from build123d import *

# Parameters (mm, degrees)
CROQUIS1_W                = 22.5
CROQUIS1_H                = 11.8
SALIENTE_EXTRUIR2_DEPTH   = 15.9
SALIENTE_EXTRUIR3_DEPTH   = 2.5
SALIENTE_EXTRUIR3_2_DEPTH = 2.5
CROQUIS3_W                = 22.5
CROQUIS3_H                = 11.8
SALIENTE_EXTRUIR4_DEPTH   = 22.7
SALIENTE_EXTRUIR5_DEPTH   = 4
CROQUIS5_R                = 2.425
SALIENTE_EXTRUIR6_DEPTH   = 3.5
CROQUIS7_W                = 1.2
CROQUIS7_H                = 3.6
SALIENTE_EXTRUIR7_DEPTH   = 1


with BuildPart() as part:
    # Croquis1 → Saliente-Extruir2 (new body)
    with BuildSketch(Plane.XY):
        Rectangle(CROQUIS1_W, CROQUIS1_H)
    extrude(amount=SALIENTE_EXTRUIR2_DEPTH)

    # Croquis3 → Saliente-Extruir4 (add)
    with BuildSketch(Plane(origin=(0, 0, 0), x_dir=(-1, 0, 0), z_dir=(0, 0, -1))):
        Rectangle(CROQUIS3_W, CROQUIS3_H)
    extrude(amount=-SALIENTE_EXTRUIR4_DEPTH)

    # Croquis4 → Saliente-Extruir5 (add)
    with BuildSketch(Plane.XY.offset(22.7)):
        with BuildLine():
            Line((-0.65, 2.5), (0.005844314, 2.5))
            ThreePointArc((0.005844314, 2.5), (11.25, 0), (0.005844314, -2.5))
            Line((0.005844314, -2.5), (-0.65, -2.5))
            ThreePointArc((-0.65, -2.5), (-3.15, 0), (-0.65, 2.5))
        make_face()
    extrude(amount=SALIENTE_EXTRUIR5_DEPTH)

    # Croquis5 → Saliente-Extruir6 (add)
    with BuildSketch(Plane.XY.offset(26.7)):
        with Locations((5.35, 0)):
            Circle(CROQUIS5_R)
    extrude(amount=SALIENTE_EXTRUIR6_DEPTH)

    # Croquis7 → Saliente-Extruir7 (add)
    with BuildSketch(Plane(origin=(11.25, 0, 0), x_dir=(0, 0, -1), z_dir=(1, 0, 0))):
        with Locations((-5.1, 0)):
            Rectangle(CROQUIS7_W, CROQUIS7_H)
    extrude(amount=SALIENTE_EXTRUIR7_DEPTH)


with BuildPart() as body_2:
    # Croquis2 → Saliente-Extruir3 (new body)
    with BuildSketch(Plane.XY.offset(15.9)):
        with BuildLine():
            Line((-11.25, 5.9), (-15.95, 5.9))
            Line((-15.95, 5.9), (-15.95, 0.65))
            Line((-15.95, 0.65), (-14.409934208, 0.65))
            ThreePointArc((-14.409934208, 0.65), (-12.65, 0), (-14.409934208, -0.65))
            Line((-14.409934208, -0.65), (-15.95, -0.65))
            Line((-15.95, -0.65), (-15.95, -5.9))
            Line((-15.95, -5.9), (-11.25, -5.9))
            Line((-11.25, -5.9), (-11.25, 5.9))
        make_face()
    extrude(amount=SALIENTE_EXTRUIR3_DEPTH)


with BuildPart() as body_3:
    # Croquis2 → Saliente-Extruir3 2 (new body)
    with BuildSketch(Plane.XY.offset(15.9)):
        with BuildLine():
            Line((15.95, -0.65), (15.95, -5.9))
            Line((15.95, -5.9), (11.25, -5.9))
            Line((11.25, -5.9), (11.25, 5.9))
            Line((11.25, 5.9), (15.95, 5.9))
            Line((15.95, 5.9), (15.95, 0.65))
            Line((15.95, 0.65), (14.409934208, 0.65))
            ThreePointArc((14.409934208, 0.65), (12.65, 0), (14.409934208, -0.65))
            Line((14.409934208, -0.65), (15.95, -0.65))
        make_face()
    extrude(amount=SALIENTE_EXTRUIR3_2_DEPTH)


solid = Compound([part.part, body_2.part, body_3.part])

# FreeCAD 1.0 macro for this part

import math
import FreeCAD as App
import Part
import Sketcher
Q = App.Units.Quantity

doc = App.newDocument("Part")
body = doc.addObject("PartDesign::Body", "Body")

# Sketch on XY plane
sketch1 = doc.addObject("Sketcher::SketchObject", "Sketch")
body.addObject(sketch1)
sketch1.AttachmentSupport = (doc.XY_Plane, [""])
sketch1.MapMode = "FlatFace"
sketch1.addGeometry([
    Part.LineSegment(App.Vector(-11.25, 5.9, 0), App.Vector(-11.25, -5.9, 0)),
    Part.LineSegment(App.Vector(-11.25, -5.9, 0), App.Vector(11.25, -5.9, 0)),
    Part.LineSegment(App.Vector(11.25, -5.9, 0), App.Vector(11.25, 5.9, 0)),
    Part.LineSegment(App.Vector(11.25, 5.9, 0), App.Vector(-11.25, 5.9, 0)),
], False)
sketch1.addConstraint([
    Sketcher.Constraint("Coincident", 0, 2, 1, 1),
    Sketcher.Constraint("Coincident", 1, 2, 2, 1),
    Sketcher.Constraint("Coincident", 2, 2, 3, 1),
    Sketcher.Constraint("Coincident", 3, 2, 0, 1),
    Sketcher.Constraint("Vertical", 0),
    Sketcher.Constraint("Horizontal", 1),
    Sketcher.Constraint("Vertical", 2),
    Sketcher.Constraint("Horizontal", 3),
    Sketcher.Constraint("Symmetric", 0, 2, 2, 2, -1, 1),
    Sketcher.Constraint("DistanceX", 1, 1, 1, 2, Q("22.5 mm")),
    Sketcher.Constraint("DistanceY", 0, 2, 0, 1, Q("11.8 mm")),
])
pad1 = doc.addObject("PartDesign::Pad", "Pad")
body.addObject(pad1)
pad1.Profile = sketch1
pad1.Length = 15.9

# Sketch on XY plane
sketch2 = doc.addObject("Sketcher::SketchObject", "Sketch001")
body.addObject(sketch2)
sketch2.AttachmentSupport = (doc.XY_Plane, [""])
sketch2.MapMode = "FlatFace"
sketch2.addGeometry([
    Part.LineSegment(App.Vector(11.25, 5.9, 0), App.Vector(11.25, -5.9, 0)),
    Part.LineSegment(App.Vector(11.25, -5.9, 0), App.Vector(-11.25, -5.9, 0)),
    Part.LineSegment(App.Vector(-11.25, -5.9, 0), App.Vector(-11.25, 5.9, 0)),
    Part.LineSegment(App.Vector(-11.25, 5.9, 0), App.Vector(11.25, 5.9, 0)),
], False)
sketch2.addConstraint([
    Sketcher.Constraint("Coincident", 0, 2, 1, 1),
    Sketcher.Constraint("Coincident", 1, 2, 2, 1),
    Sketcher.Constraint("Coincident", 2, 2, 3, 1),
    Sketcher.Constraint("Coincident", 3, 2, 0, 1),
    Sketcher.Constraint("Vertical", 0),
    Sketcher.Constraint("Horizontal", 1),
    Sketcher.Constraint("Vertical", 2),
    Sketcher.Constraint("Horizontal", 3),
    Sketcher.Constraint("Symmetric", 0, 2, 2, 2, -1, 1),
    Sketcher.Constraint("DistanceX", 1, 2, 1, 1, Q("22.5 mm")),
    Sketcher.Constraint("DistanceY", 0, 2, 0, 1, Q("11.8 mm")),
])
pad2 = doc.addObject("PartDesign::Pad", "Pad001")
body.addObject(pad2)
pad2.Profile = sketch2
pad2.Length = 22.7

# Sketch on XY plane
sketch3 = doc.addObject("Sketcher::SketchObject", "Sketch002")
body.addObject(sketch3)
sketch3.AttachmentSupport = (doc.XY_Plane, [""])
sketch3.MapMode = "FlatFace"
sketch3.AttachmentOffset = App.Placement(App.Vector(0, 0, 22.7), App.Rotation())
sketch3.addGeometry([
    Part.LineSegment(App.Vector(0.005844, 2.5, 0), App.Vector(-0.65, 2.5, 0)),
    Part.ArcOfCircle(Part.Circle(App.Vector(-0.65, 0, 0), App.Vector(0, 0, 1), 2.5), math.radians(90), math.radians(270)),
    Part.LineSegment(App.Vector(-0.65, -2.5, 0), App.Vector(0.005844, -2.5, 0)),
    Part.ArcOfCircle(Part.Circle(App.Vector(5.35, 0, 0), App.Vector(0, 0, 1), 5.9), math.radians(-154.929772), math.radians(154.929772)),
], False)
sketch3.addConstraint([
    Sketcher.Constraint("Tangent", 0, 2, 1, 1),
    Sketcher.Constraint("Tangent", 1, 2, 2, 1),
    Sketcher.Constraint("Coincident", 2, 2, 3, 1),
    Sketcher.Constraint("Coincident", 3, 2, 0, 1),
    Sketcher.Constraint("Horizontal", 0),
    Sketcher.Constraint("Horizontal", 2),
    Sketcher.Constraint("Symmetric", 2, 2, 3, 2, -1),
    Sketcher.Constraint("Radius", 1, Q("2.5 mm")),
    Sketcher.Constraint("Radius", 3, Q("5.9 mm")),
    Sketcher.Constraint("DistanceX", 1, 3, 3, 3, Q("6 mm")),
    Sketcher.Constraint("DistanceX", 1, 3, -1, 1, Q("0.65 mm")),
])
pad3 = doc.addObject("PartDesign::Pad", "Pad002")
body.addObject(pad3)
pad3.Profile = sketch3
pad3.Length = 4

# Sketch on XY plane
sketch4 = doc.addObject("Sketcher::SketchObject", "Sketch003")
body.addObject(sketch4)
sketch4.AttachmentSupport = (doc.XY_Plane, [""])
sketch4.MapMode = "FlatFace"
sketch4.AttachmentOffset = App.Placement(App.Vector(0, 0, 26.7), App.Rotation())
sketch4.addGeometry(Part.Circle(App.Vector(5.35, 0, 0), App.Vector(0, 0, 1), 2.425), False)
sketch4.addConstraint([
    Sketcher.Constraint("PointOnObject", 0, 3, -1),
    Sketcher.Constraint("Diameter", 0, Q("4.85 mm")),
    Sketcher.Constraint("DistanceX", -1, 1, 0, 3, Q("5.35 mm")),
])
pad4 = doc.addObject("PartDesign::Pad", "Pad003")
body.addObject(pad4)
pad4.Profile = sketch4
pad4.Length = 3.5

# Sketch on YZ plane
sketch5 = doc.addObject("Sketcher::SketchObject", "Sketch004")
body.addObject(sketch5)
sketch5.AttachmentSupport = (doc.YZ_Plane, [""])
sketch5.MapMode = "FlatFace"
sketch5.AttachmentOffset = App.Placement(App.Vector(0, 0, 11.25), App.Rotation())
sketch5.addGeometry([
    Part.LineSegment(App.Vector(1.8, 5.7, 0), App.Vector(-1.8, 5.7, 0)),
    Part.LineSegment(App.Vector(-1.8, 5.7, 0), App.Vector(-1.8, 4.5, 0)),
    Part.LineSegment(App.Vector(-1.8, 4.5, 0), App.Vector(1.8, 4.5, 0)),
    Part.LineSegment(App.Vector(1.8, 4.5, 0), App.Vector(1.8, 5.7, 0)),
], False)
sketch5.addConstraint([
    Sketcher.Constraint("Coincident", 0, 2, 1, 1),
    Sketcher.Constraint("Coincident", 1, 2, 2, 1),
    Sketcher.Constraint("Coincident", 2, 2, 3, 1),
    Sketcher.Constraint("Coincident", 3, 2, 0, 1),
    Sketcher.Constraint("Horizontal", 0),
    Sketcher.Constraint("Vertical", 1),
    Sketcher.Constraint("Horizontal", 2),
    Sketcher.Constraint("Vertical", 3),
    Sketcher.Constraint("DistanceX", 0, 2, 0, 1, Q("3.6 mm")),
    Sketcher.Constraint("DistanceY", 1, 2, 1, 1, Q("1.2 mm")),
    Sketcher.Constraint("DistanceX", 0, 2, -1, 1, Q("1.8 mm")),
    Sketcher.Constraint("DistanceY", -1, 1, 0, 2, Q("5.7 mm")),
])
pad5 = doc.addObject("PartDesign::Pad", "Pad004")
body.addObject(pad5)
pad5.Profile = sketch5
pad5.Length = 1
body2 = doc.addObject("PartDesign::Body", "Body001")

# Sketch on XY plane
sketch6 = doc.addObject("Sketcher::SketchObject", "Sketch005")
body2.addObject(sketch6)
sketch6.AttachmentSupport = (doc.getObject("XY_Plane001"), [""])
sketch6.MapMode = "FlatFace"
sketch6.AttachmentOffset = App.Placement(App.Vector(0, 0, 15.9), App.Rotation())
sketch6.addGeometry([
    Part.LineSegment(App.Vector(-11.25, 5.9, 0), App.Vector(-15.95, 5.9, 0)),  # 0
    Part.LineSegment(App.Vector(-15.95, 5.9, 0), App.Vector(-15.95, 0.65, 0)),  # 1
    Part.LineSegment(App.Vector(-15.95, 0.65, 0), App.Vector(-14.409934, 0.65, 0)),  # 2
    Part.ArcOfCircle(Part.Circle(App.Vector(-13.65, 0, 0), App.Vector(0, 0, 1), 1), math.radians(-139.458398), math.radians(139.458398)),  # 3
    Part.LineSegment(App.Vector(-14.409934, -0.65, 0), App.Vector(-15.95, -0.65, 0)),  # 4
    Part.LineSegment(App.Vector(-15.95, -0.65, 0), App.Vector(-15.95, -5.9, 0)),  # 5
    Part.LineSegment(App.Vector(-15.95, -5.9, 0), App.Vector(-11.25, -5.9, 0)),  # 6
    Part.LineSegment(App.Vector(-11.25, -5.9, 0), App.Vector(-11.25, 5.9, 0)),  # 7
], False)
sketch6.addConstraint([
    Sketcher.Constraint("Coincident", 0, 2, 1, 1),
    Sketcher.Constraint("Coincident", 1, 2, 2, 1),
    Sketcher.Constraint("Coincident", 2, 2, 3, 2),
    Sketcher.Constraint("Coincident", 3, 1, 4, 1),
    Sketcher.Constraint("Coincident", 4, 2, 5, 1),
    Sketcher.Constraint("Coincident", 5, 2, 6, 1),
    Sketcher.Constraint("Coincident", 6, 2, 7, 1),
    Sketcher.Constraint("Coincident", 7, 2, 0, 1),
    Sketcher.Constraint("Horizontal", 0),
    Sketcher.Constraint("Vertical", 1),
    Sketcher.Constraint("Horizontal", 2),
    Sketcher.Constraint("Horizontal", 4),
    Sketcher.Constraint("Vertical", 5),
    Sketcher.Constraint("Horizontal", 6),
    Sketcher.Constraint("Vertical", 7),
    Sketcher.Constraint("Symmetric", 2, 2, 3, 1, -1),
    Sketcher.Constraint("Symmetric", 0, 2, 5, 2, -1),
    Sketcher.Constraint("Radius", 3, Q("1 mm")),
    Sketcher.Constraint("DistanceX", 0, 2, 0, 1, Q("4.7 mm")),
    Sketcher.Constraint("DistanceY", 7, 1, 7, 2, Q("11.8 mm")),
    Sketcher.Constraint("DistanceY", 1, 2, 1, 1, Q("5.25 mm")),
    Sketcher.Constraint("DistanceX", 0, 2, 3, 3, Q("2.3 mm")),
    Sketcher.Constraint("DistanceX", 3, 3, -1, 1, Q("13.65 mm")),
])
pad6 = doc.addObject("PartDesign::Pad", "Pad005")
body2.addObject(pad6)
pad6.Profile = sketch6
pad6.Length = 2.5
body3 = doc.addObject("PartDesign::Body", "Body002")

# Sketch on XY plane
sketch7 = doc.addObject("Sketcher::SketchObject", "Sketch006")
body3.addObject(sketch7)
sketch7.AttachmentSupport = (doc.getObject("XY_Plane002"), [""])
sketch7.MapMode = "FlatFace"
sketch7.AttachmentOffset = App.Placement(App.Vector(0, 0, 15.9), App.Rotation())
sketch7.addGeometry([
    Part.LineSegment(App.Vector(15.95, -5.9, 0), App.Vector(15.95, -0.65, 0)),  # 0
    Part.LineSegment(App.Vector(15.95, -0.65, 0), App.Vector(14.409934, -0.65, 0)),  # 1
    Part.ArcOfCircle(Part.Circle(App.Vector(13.65, 0, 0), App.Vector(0, 0, 1), 1), math.radians(40.541602), math.radians(319.458398)),  # 2
    Part.LineSegment(App.Vector(14.409934, 0.65, 0), App.Vector(15.95, 0.65, 0)),  # 3
    Part.LineSegment(App.Vector(15.95, 0.65, 0), App.Vector(15.95, 5.9, 0)),  # 4
    Part.LineSegment(App.Vector(15.95, 5.9, 0), App.Vector(11.25, 5.9, 0)),  # 5
    Part.LineSegment(App.Vector(11.25, 5.9, 0), App.Vector(11.25, -5.9, 0)),  # 6
    Part.LineSegment(App.Vector(11.25, -5.9, 0), App.Vector(15.95, -5.9, 0)),  # 7
], False)
sketch7.addConstraint([
    Sketcher.Constraint("Coincident", 0, 2, 1, 1),
    Sketcher.Constraint("Coincident", 1, 2, 2, 2),
    Sketcher.Constraint("Coincident", 2, 1, 3, 1),
    Sketcher.Constraint("Coincident", 3, 2, 4, 1),
    Sketcher.Constraint("Coincident", 4, 2, 5, 1),
    Sketcher.Constraint("Coincident", 5, 2, 6, 1),
    Sketcher.Constraint("Coincident", 6, 2, 7, 1),
    Sketcher.Constraint("Coincident", 7, 2, 0, 1),
    Sketcher.Constraint("Vertical", 0),
    Sketcher.Constraint("Horizontal", 1),
    Sketcher.Constraint("Horizontal", 3),
    Sketcher.Constraint("Vertical", 4),
    Sketcher.Constraint("Horizontal", 5),
    Sketcher.Constraint("Vertical", 6),
    Sketcher.Constraint("Horizontal", 7),
    Sketcher.Constraint("Symmetric", 1, 2, 2, 1, -1),
    Sketcher.Constraint("Symmetric", 4, 2, 7, 2, -1),
    Sketcher.Constraint("Radius", 2, Q("1 mm")),
    Sketcher.Constraint("DistanceX", 5, 2, 5, 1, Q("4.7 mm")),
    Sketcher.Constraint("DistanceY", 6, 2, 6, 1, Q("11.8 mm")),
    Sketcher.Constraint("DistanceY", 0, 1, 0, 2, Q("5.25 mm")),
    Sketcher.Constraint("DistanceX", 2, 3, 0, 2, Q("2.3 mm")),
    Sketcher.Constraint("DistanceX", -1, 1, 2, 3, Q("13.65 mm")),
])
pad7 = doc.addObject("PartDesign::Pad", "Pad006")
body3.addObject(pad7)
pad7.Profile = sketch7
pad7.Length = 2.5

doc.recompute()
